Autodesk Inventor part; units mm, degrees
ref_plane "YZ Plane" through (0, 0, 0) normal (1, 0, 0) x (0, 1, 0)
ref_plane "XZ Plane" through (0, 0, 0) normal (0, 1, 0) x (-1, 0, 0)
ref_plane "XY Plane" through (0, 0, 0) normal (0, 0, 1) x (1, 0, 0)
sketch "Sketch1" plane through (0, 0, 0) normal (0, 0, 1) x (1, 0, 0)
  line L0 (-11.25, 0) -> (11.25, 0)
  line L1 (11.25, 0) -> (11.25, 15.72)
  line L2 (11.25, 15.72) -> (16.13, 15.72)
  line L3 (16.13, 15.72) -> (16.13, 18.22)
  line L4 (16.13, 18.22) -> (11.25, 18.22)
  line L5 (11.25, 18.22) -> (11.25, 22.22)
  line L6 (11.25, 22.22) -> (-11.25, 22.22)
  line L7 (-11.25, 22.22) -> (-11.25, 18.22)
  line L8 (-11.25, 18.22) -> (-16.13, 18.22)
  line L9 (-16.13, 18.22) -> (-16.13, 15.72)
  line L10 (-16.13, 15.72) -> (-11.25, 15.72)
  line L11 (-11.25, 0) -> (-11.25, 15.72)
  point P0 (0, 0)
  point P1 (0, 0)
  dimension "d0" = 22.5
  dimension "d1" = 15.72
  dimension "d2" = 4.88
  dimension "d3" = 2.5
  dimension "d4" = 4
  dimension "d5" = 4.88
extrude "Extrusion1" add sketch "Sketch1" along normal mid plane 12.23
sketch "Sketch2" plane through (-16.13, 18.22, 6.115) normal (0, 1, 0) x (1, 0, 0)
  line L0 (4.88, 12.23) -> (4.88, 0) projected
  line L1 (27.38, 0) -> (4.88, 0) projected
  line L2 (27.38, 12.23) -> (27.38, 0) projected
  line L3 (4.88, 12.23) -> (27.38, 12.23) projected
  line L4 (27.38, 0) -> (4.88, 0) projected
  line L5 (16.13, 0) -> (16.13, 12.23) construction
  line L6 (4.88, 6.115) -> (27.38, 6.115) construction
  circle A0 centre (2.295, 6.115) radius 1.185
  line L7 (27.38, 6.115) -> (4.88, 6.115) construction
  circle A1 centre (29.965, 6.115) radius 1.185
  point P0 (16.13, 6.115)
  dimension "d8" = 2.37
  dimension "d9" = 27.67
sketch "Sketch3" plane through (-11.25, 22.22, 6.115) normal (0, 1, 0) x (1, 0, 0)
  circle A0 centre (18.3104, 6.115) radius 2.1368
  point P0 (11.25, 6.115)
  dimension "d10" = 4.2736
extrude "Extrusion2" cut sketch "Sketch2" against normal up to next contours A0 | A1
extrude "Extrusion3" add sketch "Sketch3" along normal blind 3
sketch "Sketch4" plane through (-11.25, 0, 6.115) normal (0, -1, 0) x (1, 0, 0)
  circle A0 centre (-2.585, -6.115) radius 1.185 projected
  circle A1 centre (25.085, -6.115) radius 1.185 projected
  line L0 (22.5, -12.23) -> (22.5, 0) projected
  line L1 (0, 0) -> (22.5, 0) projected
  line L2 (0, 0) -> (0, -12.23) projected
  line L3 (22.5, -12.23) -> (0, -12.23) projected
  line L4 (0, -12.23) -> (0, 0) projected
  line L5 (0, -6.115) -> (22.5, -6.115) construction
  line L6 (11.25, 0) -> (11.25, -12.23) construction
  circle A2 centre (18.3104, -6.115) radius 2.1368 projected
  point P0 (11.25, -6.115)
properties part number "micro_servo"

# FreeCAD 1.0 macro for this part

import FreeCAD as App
import Part
import Sketcher
from FreeCAD import Vector

doc = App.newDocument("Part")
body = doc.addObject("PartDesign::Body", "Body")

# Sketch on XY plane
sketch1 = body.newObject("Sketcher::SketchObject", "Sketch")
sketch1.AttachmentSupport = (doc.getObject("XY_Plane"), [""])
sketch1.MapMode = "FlatFace"
sketch1.addGeometry([
    Part.LineSegment(Vector(-11.2, 15.7, 0), Vector(-11.2, 0, 0)),  # 0
    Part.LineSegment(Vector(-11.2, 0, 0), Vector(11.2, 0, 0)),  # 1
    Part.LineSegment(Vector(11.2, 0, 0), Vector(11.2, 15.7, 0)),  # 2
    Part.LineSegment(Vector(11.2, 15.7, 0), Vector(16.1, 15.7, 0)),  # 3
    Part.LineSegment(Vector(16.1, 15.7, 0), Vector(16.1, 18.2, 0)),  # 4
    Part.LineSegment(Vector(16.1, 18.2, 0), Vector(11.2, 18.2, 0)),  # 5
    Part.LineSegment(Vector(11.2, 18.2, 0), Vector(11.2, 22.2, 0)),  # 6
    Part.LineSegment(Vector(11.2, 22.2, 0), Vector(-11.2, 22.2, 0)),  # 7
    Part.LineSegment(Vector(-11.2, 22.2, 0), Vector(-11.2, 18.2, 0)),  # 8
    Part.LineSegment(Vector(-11.2, 18.2, 0), Vector(-16.1, 18.2, 0)),  # 9
    Part.LineSegment(Vector(-16.1, 18.2, 0), Vector(-16.1, 15.7, 0)),  # 10
    Part.LineSegment(Vector(-16.1, 15.7, 0), Vector(-11.2, 15.7, 0)),  # 11
], False)
sketch1.addConstraint([
    Sketcher.Constraint("Coincident", 0, 2, 1, 1),
    Sketcher.Constraint("Coincident", 1, 2, 2, 1),
    Sketcher.Constraint("Coincident", 2, 2, 3, 1),
    Sketcher.Constraint("Coincident", 3, 2, 4, 1),
    Sketcher.Constraint("Coincident", 4, 2, 5, 1),
    Sketcher.Constraint("Coincident", 5, 2, 6, 1),
    Sketcher.Constraint("Coincident", 6, 2, 7, 1),
    Sketcher.Constraint("Coincident", 7, 2, 8, 1),
    Sketcher.Constraint("Coincident", 8, 2, 9, 1),
    Sketcher.Constraint("Coincident", 9, 2, 10, 1),
    Sketcher.Constraint("Coincident", 10, 2, 11, 1),
    Sketcher.Constraint("Coincident", 11, 2, 0, 1),
    Sketcher.Constraint("Vertical", 0),
    Sketcher.Constraint("Horizontal", 1),
    Sketcher.Constraint("Vertical", 2),
    Sketcher.Constraint("Horizontal", 3),
    Sketcher.Constraint("Vertical", 4),
    Sketcher.Constraint("Horizontal", 5),
    Sketcher.Constraint("Vertical", 6),
    Sketcher.Constraint("Horizontal", 7),
    Sketcher.Constraint("Vertical", 8),
    Sketcher.Constraint("Horizontal", 9),
    Sketcher.Constraint("Vertical", 10),
    Sketcher.Constraint("Horizontal", 11),
    Sketcher.Constraint("Symmetric", 0, 2, 1, 2, -1, 1),
    Sketcher.Constraint("Symmetric", 5, 2, 8, 2, -2),
    Sketcher.Constraint("Symmetric", 3, 2, 10, 2, -2),
    Sketcher.Constraint("Vertical", 2, 2, 5, 2),
    Sketcher.Constraint("DistanceY", 6, 1, 6, 2, 4.0),
    Sketcher.Constraint("DistanceX", 1, 1, 1, 2, 22.5),
    Sketcher.Constraint("DistanceY", 4, 1, 4, 2, 2.5),
    Sketcher.Constraint("DistanceX", 3, 1, 3, 2, 4.88),
    Sketcher.Constraint("DistanceY", 0, 2, 0, 1, 15.72),
])
pad1 = body.newObject("PartDesign::Pad", "Pad")
pad1.Profile = sketch1
pad1.Length = 12.23
pad1.Midplane = True

# Sketch on XZ plane
sketch2 = body.newObject("Sketcher::SketchObject", "Sketch001")
sketch2.AttachmentSupport = (doc.getObject("XZ_Plane"), [""])
sketch2.MapMode = "FlatFace"
sketch2.AttachmentOffset = App.Placement(Vector(0, 0, -18.22), App.Rotation())
sketch2.addGeometry([
    Part.Circle(Vector(-13.8, 0, 0), Vector(0, 0, 1), 1.2),
    Part.Circle(Vector(13.8, 0, 0), Vector(0, 0, 1), 1.2),
], False)
sketch2.addConstraint([
    Sketcher.Constraint("Equal", 0, 1),
    Sketcher.Constraint("Symmetric", 0, 3, 1, 3, -1, 1),
    Sketcher.Constraint("PointOnObject", 0, 3, -1),
    Sketcher.Constraint("Diameter", 0, 2.37),
    Sketcher.Constraint("DistanceX", 0, 3, 1, 3, 27.67),
])
pocket1 = body.newObject("PartDesign::Pocket", "Pocket")
pocket1.Profile = sketch2
pocket1.Type = "UpToFirst"
pocket1.Reversed = True

# Sketch on XZ plane
sketch3 = body.newObject("Sketcher::SketchObject", "Sketch002")
sketch3.AttachmentSupport = (doc.getObject("XZ_Plane"), [""])
sketch3.MapMode = "FlatFace"
sketch3.AttachmentOffset = App.Placement(Vector(0, 0, -22.22), App.Rotation())
sketch3.addGeometry(Part.Circle(Vector(7.1, 0, 0), Vector(0, 0, 1), 2.1), False)
sketch3.addConstraint([
    Sketcher.Constraint("PointOnObject", 0, 3, -1),
    Sketcher.Constraint("Diameter", 0, 4.2736),
    Sketcher.Constraint("DistanceX", -1, 1, 0, 3, 7.0604),
])
pad2 = body.newObject("PartDesign::Pad", "Pad001")
pad2.Profile = sketch3
pad2.Length = 3
pad2.Reversed = True

doc.recompute()
